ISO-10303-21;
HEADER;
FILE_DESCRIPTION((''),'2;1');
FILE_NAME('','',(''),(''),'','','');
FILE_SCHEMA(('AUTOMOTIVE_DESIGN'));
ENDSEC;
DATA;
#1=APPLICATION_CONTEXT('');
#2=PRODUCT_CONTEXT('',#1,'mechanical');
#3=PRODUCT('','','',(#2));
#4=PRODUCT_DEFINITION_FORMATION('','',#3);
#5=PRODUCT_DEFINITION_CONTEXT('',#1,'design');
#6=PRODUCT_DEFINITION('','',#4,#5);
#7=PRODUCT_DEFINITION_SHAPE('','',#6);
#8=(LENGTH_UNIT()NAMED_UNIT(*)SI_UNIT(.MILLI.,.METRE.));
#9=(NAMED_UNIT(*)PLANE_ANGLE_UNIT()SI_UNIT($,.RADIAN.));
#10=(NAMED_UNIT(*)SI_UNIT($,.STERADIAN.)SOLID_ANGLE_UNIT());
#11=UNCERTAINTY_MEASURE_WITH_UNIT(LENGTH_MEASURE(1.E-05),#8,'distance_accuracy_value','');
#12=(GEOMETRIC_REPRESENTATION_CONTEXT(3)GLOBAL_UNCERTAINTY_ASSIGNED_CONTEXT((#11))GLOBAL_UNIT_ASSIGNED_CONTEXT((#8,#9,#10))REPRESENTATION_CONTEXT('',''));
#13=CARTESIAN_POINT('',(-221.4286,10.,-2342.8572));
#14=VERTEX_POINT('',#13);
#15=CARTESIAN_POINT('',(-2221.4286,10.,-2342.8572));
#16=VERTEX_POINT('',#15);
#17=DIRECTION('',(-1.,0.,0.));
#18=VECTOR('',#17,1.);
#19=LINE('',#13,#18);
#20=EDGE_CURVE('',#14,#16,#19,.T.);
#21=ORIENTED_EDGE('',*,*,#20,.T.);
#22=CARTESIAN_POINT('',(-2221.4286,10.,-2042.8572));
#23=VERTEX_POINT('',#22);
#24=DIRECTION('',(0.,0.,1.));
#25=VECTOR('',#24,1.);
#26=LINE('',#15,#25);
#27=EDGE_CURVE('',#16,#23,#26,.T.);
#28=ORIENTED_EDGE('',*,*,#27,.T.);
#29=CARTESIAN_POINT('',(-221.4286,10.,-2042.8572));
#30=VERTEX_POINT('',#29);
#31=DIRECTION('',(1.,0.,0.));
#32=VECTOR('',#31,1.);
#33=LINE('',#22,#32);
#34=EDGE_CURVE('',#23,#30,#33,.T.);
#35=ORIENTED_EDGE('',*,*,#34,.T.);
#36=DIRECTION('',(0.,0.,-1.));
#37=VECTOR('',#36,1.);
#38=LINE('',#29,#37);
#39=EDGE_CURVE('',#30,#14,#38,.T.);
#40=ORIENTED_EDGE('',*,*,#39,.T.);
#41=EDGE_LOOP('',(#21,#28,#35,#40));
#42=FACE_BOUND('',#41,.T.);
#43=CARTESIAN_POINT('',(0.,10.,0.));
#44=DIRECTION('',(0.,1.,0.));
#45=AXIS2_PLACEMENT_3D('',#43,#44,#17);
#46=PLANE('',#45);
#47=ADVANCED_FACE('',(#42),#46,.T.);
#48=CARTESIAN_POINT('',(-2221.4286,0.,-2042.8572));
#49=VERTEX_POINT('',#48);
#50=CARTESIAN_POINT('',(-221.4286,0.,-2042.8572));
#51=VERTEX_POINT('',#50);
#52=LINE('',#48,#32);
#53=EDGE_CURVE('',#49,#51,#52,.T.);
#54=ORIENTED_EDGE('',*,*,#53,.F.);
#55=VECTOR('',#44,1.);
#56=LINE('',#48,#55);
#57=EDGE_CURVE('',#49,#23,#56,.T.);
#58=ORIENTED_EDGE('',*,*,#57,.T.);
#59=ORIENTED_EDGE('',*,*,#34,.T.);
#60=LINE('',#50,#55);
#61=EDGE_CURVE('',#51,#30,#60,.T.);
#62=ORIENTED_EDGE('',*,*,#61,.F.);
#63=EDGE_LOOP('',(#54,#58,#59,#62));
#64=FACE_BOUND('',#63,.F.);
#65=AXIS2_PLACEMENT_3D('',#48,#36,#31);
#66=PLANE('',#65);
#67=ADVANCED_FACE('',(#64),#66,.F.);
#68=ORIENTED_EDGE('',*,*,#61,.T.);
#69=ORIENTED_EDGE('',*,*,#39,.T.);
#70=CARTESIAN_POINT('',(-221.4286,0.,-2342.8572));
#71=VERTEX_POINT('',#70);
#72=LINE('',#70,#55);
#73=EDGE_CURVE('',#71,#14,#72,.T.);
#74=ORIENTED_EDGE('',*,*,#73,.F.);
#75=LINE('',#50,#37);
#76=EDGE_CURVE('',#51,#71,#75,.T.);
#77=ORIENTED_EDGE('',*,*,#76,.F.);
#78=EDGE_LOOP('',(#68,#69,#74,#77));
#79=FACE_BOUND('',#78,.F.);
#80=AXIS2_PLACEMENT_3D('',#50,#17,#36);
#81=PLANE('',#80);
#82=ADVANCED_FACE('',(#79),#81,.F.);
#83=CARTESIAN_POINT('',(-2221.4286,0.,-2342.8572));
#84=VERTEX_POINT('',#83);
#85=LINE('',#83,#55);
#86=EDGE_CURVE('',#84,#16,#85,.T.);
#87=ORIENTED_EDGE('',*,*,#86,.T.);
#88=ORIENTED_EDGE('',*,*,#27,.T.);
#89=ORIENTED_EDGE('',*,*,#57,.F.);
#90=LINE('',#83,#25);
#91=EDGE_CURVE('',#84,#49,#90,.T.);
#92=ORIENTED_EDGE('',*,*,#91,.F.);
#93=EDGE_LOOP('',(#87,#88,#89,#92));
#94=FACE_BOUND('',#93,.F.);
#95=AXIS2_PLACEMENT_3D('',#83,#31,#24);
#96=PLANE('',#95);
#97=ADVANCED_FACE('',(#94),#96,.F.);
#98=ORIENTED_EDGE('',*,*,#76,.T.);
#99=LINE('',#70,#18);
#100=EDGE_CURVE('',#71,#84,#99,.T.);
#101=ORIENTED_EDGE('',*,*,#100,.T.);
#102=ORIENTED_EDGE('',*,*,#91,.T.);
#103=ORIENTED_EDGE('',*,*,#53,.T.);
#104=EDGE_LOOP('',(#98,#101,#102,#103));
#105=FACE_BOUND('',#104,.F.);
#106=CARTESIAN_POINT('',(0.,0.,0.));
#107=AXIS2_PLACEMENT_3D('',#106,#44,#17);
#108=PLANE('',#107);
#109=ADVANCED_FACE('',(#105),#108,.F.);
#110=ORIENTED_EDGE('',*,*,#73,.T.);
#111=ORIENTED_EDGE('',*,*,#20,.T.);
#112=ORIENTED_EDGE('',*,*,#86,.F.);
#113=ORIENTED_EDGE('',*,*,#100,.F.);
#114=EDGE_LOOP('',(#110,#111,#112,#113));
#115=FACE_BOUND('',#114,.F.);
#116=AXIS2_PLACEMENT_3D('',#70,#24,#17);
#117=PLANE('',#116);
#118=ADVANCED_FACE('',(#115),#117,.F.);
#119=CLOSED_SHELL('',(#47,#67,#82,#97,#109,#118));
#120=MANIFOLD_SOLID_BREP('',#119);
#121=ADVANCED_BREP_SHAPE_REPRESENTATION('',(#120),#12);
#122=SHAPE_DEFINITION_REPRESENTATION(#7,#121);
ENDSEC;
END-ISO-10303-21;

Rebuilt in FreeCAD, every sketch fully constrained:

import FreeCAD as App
import Part
import Sketcher
Q = App.Units.Quantity

doc = App.newDocument("Part")
body = doc.addObject("PartDesign::Body", "Body")

# Sketch on XZ plane
sketch1 = doc.addObject("Sketcher::SketchObject", "Sketch")
body.addObject(sketch1)
sketch1.AttachmentSupport = (doc.XZ_Plane, [""])
sketch1.MapMode = "FlatFace"
sketch1.addGeometry(Part.LineSegment(App.Vector(-2221.4286, -2342.8572, 0), App.Vector(-2221.4286, -2042.8572, 0)), False)
sketch1.addGeometry(Part.LineSegment(App.Vector(-2221.4286, -2042.8572, 0), App.Vector(-221.4286, -2042.8572, 0)), False)
sketch1.addGeometry(Part.LineSegment(App.Vector(-221.4286, -2042.8572, 0), App.Vector(-221.4286, -2342.8572, 0)), False)
sketch1.addGeometry(Part.LineSegment(App.Vector(-221.4286, -2342.8572, 0), App.Vector(-2221.4286, -2342.8572, 0)), False)
sketch1.addConstraint(Sketcher.Constraint("Coincident", 0, 2, 1, 1))
sketch1.addConstraint(Sketcher.Constraint("Coincident", 1, 2, 2, 1))
sketch1.addConstraint(Sketcher.Constraint("Coincident", 2, 2, 3, 1))
sketch1.addConstraint(Sketcher.Constraint("Coincident", 3, 2, 0, 1))
sketch1.addConstraint(Sketcher.Constraint("Vertical", 0))
sketch1.addConstraint(Sketcher.Constraint("Horizontal", 1))
sketch1.addConstraint(Sketcher.Constraint("Vertical", 2))
sketch1.addConstraint(Sketcher.Constraint("Horizontal", 3))
sketch1.addConstraint(Sketcher.Constraint("DistanceX", 1, 1, 1, 2, Q("2000 mm")))
sketch1.addConstraint(Sketcher.Constraint("DistanceY", 0, 1, 0, 2, Q("300 mm")))
sketch1.addConstraint(Sketcher.Constraint("DistanceX", 0, 2, -1, 1, Q("2221.4286 mm")))
sketch1.addConstraint(Sketcher.Constraint("DistanceY", 0, 2, -1, 1, Q("2042.8572 mm")))
pad1 = doc.addObject("PartDesign::Pad", "Pad")
body.addObject(pad1)
pad1.Profile = sketch1
pad1.Length = 10
pad1.Reversed = True

doc.recompute()
